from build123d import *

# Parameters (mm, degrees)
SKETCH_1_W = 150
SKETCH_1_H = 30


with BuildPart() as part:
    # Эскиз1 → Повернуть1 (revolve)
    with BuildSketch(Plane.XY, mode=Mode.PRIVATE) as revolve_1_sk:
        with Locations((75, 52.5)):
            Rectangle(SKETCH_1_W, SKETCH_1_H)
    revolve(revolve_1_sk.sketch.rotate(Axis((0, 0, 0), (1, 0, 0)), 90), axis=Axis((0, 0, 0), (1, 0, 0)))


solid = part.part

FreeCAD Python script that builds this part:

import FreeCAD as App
import Part
import Sketcher
Q = App.Units.Quantity

doc = App.newDocument("Part")
body = doc.addObject("PartDesign::Body", "Body")

# Sketch on XY plane
sketch1 = doc.addObject("Sketcher::SketchObject", "Sketch")
body.addObject(sketch1)
sketch1.AttachmentSupport = (doc.XY_Plane, [""])
sketch1.MapMode = "FlatFace"
sketch1.addGeometry(Part.LineSegment(App.Vector(0, 68, 0), App.Vector(0, 38, 0)), False)
sketch1.addGeometry(Part.LineSegment(App.Vector(0, 38, 0), App.Vector(150, 38, 0)), False)
sketch1.addGeometry(Part.LineSegment(App.Vector(150, 38, 0), App.Vector(150, 68, 0)), False)
sketch1.addGeometry(Part.LineSegment(App.Vector(150, 68, 0), App.Vector(0, 68, 0)), False)
sketch1.addConstraint(Sketcher.Constraint("Coincident", 0, 2, 1, 1))
sketch1.addConstraint(Sketcher.Constraint("Coincident", 1, 2, 2, 1))
sketch1.addConstraint(Sketcher.Constraint("Coincident", 2, 2, 3, 1))
sketch1.addConstraint(Sketcher.Constraint("Coincident", 3, 2, 0, 1))
sketch1.addConstraint(Sketcher.Constraint("Vertical", 0))
sketch1.addConstraint(Sketcher.Constraint("Horizontal", 1))
sketch1.addConstraint(Sketcher.Constraint("Vertical", 2))
sketch1.addConstraint(Sketcher.Constraint("Horizontal", 3))
sketch1.addConstraint(Sketcher.Constraint("PointOnObject", 0, 2, -2))
sketch1.addConstraint(Sketcher.Constraint("DistanceX", 1, 1, 1, 2, Q("150 mm")))
sketch1.addConstraint(Sketcher.Constraint("DistanceY", 0, 2, 0, 1, Q("30 mm")))
sketch1.addConstraint(Sketcher.Constraint("DistanceY", -1, 1, 0, 2, Q("37.5 mm")))
revolution = doc.addObject("PartDesign::Revolution", "Revolution")
body.addObject(revolution)
revolution.Profile = sketch1
revolution.ReferenceAxis = (sketch1, ["H_Axis"])
revolution.Angle = 360

doc.recompute()
